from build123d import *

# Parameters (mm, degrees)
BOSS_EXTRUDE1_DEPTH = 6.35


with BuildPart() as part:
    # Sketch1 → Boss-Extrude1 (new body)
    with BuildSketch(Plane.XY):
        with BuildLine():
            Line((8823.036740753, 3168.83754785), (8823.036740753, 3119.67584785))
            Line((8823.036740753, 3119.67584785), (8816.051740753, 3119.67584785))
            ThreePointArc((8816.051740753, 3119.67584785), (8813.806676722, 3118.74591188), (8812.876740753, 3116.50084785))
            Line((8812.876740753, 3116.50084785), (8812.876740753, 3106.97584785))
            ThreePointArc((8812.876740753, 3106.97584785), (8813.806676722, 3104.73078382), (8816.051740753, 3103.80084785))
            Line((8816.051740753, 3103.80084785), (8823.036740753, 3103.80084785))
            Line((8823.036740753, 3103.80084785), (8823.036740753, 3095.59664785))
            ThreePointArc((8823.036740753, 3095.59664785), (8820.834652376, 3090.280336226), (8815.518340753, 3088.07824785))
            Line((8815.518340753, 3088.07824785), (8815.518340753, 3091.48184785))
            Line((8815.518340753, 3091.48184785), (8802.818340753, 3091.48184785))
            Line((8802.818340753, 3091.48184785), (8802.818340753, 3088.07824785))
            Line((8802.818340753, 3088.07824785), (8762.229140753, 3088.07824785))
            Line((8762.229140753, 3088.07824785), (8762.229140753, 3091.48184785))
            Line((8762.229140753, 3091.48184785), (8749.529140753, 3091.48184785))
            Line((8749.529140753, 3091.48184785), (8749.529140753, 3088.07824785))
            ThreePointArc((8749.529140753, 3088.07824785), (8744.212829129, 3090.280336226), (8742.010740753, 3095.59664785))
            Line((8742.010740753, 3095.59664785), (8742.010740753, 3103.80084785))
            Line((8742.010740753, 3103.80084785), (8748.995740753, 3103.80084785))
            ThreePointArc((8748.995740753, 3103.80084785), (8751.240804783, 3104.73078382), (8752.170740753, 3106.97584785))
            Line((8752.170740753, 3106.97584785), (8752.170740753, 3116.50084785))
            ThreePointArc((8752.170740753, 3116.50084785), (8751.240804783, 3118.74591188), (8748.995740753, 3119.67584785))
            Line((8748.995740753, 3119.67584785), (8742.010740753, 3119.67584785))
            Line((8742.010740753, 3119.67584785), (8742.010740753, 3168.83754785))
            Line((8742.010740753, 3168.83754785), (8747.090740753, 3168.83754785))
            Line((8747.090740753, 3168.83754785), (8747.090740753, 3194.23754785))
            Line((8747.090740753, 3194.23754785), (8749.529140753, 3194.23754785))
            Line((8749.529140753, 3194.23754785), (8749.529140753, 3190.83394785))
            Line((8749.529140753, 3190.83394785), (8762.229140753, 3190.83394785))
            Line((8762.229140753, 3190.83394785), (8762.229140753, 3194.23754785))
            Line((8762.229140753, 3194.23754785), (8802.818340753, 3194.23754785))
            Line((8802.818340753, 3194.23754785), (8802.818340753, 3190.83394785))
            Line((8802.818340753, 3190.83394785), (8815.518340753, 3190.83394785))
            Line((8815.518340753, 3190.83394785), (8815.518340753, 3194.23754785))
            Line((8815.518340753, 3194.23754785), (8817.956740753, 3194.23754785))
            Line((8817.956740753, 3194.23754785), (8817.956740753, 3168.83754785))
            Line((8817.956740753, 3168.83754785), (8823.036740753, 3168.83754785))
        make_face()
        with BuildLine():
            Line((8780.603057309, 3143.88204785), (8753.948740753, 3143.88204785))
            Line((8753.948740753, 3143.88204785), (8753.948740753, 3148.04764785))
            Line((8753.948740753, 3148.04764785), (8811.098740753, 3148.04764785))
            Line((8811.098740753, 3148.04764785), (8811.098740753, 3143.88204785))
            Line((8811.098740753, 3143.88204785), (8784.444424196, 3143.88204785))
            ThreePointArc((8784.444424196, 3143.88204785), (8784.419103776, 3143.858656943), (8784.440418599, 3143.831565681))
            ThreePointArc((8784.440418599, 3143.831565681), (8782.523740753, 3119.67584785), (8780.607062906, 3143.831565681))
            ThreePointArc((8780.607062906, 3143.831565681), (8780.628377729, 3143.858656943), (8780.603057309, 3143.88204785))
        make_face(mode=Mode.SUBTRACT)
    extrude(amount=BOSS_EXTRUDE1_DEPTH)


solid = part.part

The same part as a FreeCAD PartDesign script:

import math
import FreeCAD as App
import Part
import Sketcher
Q = App.Units.Quantity

doc = App.newDocument("Part")
params = doc.addObject("Spreadsheet::Sheet", "Params")
for row, (alias, value) in enumerate([
    ("sketch1_height", "1 in"),
    ("sketch1_width", "0.2 in"),
    ("sketch1_width2", "0.5 in"),
    ("sketch1_radius", "0.125 in"),
    ("sketch1_radius2", "0.296 in"),
    ("pad1_length", "0.25 in"),
], start=1):
    params.set(f"A{row}", alias)
    params.set(f"B{row}", "=" + value)
    params.setAlias(f"B{row}", alias)

body = doc.addObject("PartDesign::Body", "Body")

# Sketch on XY plane
sketch1 = body.newObject("Sketcher::SketchObject", "Sketch")
sketch1.AttachmentSupport = (doc.getObject("XY_Plane"), [""])
sketch1.MapMode = "FlatFace"
sketch1.addGeometry([
    Part.LineSegment(App.Vector(8823.036741, 3119.675848, 0), App.Vector(8823.036741, 3168.837548, 0)),  # 0
    Part.LineSegment(App.Vector(8823.036741, 3168.837548, 0), App.Vector(8817.956741, 3168.837548, 0)),  # 1
    Part.LineSegment(App.Vector(8817.956741, 3168.837548, 0), App.Vector(8817.956741, 3194.237548, 0)),  # 2
    Part.LineSegment(App.Vector(8817.956741, 3194.237548, 0), App.Vector(8815.518341, 3194.237548, 0)),  # 3
    Part.LineSegment(App.Vector(8815.518341, 3194.237548, 0), App.Vector(8815.518341, 3190.833948, 0)),  # 4
    Part.LineSegment(App.Vector(8815.518341, 3190.833948, 0), App.Vector(8802.818341, 3190.833948, 0)),  # 5
    Part.LineSegment(App.Vector(8802.818341, 3190.833948, 0), App.Vector(8802.818341, 3194.237548, 0)),  # 6
    Part.LineSegment(App.Vector(8802.818341, 3194.237548, 0), App.Vector(8762.229141, 3194.237548, 0)),  # 7
    Part.LineSegment(App.Vector(8762.229141, 3194.237548, 0), App.Vector(8762.229141, 3190.833948, 0)),  # 8
    Part.LineSegment(App.Vector(8762.229141, 3190.833948, 0), App.Vector(8749.529141, 3190.833948, 0)),  # 9
    Part.LineSegment(App.Vector(8749.529141, 3190.833948, 0), App.Vector(8749.529141, 3194.237548, 0)),  # 10
    Part.LineSegment(App.Vector(8749.529141, 3194.237548, 0), App.Vector(8747.090741, 3194.237548, 0)),  # 11
    Part.LineSegment(App.Vector(8747.090741, 3194.237548, 0), App.Vector(8747.090741, 3168.837548, 0)),  # 12
    Part.LineSegment(App.Vector(8747.090741, 3168.837548, 0), App.Vector(8742.010741, 3168.837548, 0)),  # 13
    Part.LineSegment(App.Vector(8742.010741, 3168.837548, 0), App.Vector(8742.010741, 3119.675848, 0)),  # 14
    Part.LineSegment(App.Vector(8742.010741, 3119.675848, 0), App.Vector(8748.995741, 3119.675848, 0)),  # 15
    Part.ArcOfCircle(Part.Circle(App.Vector(8748.995741, 3116.500848, 0), App.Vector(0, 0, 1), 3.175), math.radians(0), math.radians(90)),  # 16
    Part.LineSegment(App.Vector(8752.170741, 3116.500848, 0), App.Vector(8752.170741, 3106.975848, 0)),  # 17
    Part.ArcOfCircle(Part.Circle(App.Vector(8748.995741, 3106.975848, 0), App.Vector(0, 0, 1), 3.175), math.radians(-90), math.radians(0)),  # 18
    Part.LineSegment(App.Vector(8748.995741, 3103.800848, 0), App.Vector(8742.010741, 3103.800848, 0)),  # 19
    Part.LineSegment(App.Vector(8742.010741, 3103.800848, 0), App.Vector(8742.010741, 3095.596648, 0)),  # 20
    Part.ArcOfCircle(Part.Circle(App.Vector(8749.529141, 3095.596648, 0), App.Vector(0, 0, 1), 7.5184), math.radians(180), math.radians(270)),  # 21
    Part.LineSegment(App.Vector(8749.529141, 3088.078248, 0), App.Vector(8749.529141, 3091.481848, 0)),  # 22
    Part.LineSegment(App.Vector(8749.529141, 3091.481848, 0), App.Vector(8762.229141, 3091.481848, 0)),  # 23
    Part.LineSegment(App.Vector(8762.229141, 3091.481848, 0), App.Vector(8762.229141, 3088.078248, 0)),  # 24
    Part.LineSegment(App.Vector(8762.229141, 3088.078248, 0), App.Vector(8802.818341, 3088.078248, 0)),  # 25
    Part.LineSegment(App.Vector(8802.818341, 3088.078248, 0), App.Vector(8802.818341, 3091.481848, 0)),  # 26
    Part.LineSegment(App.Vector(8802.818341, 3091.481848, 0), App.Vector(8815.518341, 3091.481848, 0)),  # 27
    Part.LineSegment(App.Vector(8815.518341, 3091.481848, 0), App.Vector(8815.518341, 3088.078248, 0)),  # 28
    Part.ArcOfCircle(Part.Circle(App.Vector(8815.518341, 3095.596648, 0), App.Vector(0, 0, 1), 7.5184), math.radians(-90), math.radians(0)),  # 29
    Part.LineSegment(App.Vector(8823.036741, 3095.596648, 0), App.Vector(8823.036741, 3103.800848, 0)),  # 30
    Part.LineSegment(App.Vector(8823.036741, 3103.800848, 0), App.Vector(8816.051741, 3103.800848, 0)),  # 31
    Part.ArcOfCircle(Part.Circle(App.Vector(8816.051741, 3106.975848, 0), App.Vector(0, 0, 1), 3.175), math.radians(180), math.radians(270)),  # 32
    Part.LineSegment(App.Vector(8812.876741, 3106.975848, 0), App.Vector(8812.876741, 3116.500848, 0)),  # 33
    Part.ArcOfCircle(Part.Circle(App.Vector(8816.051741, 3116.500848, 0), App.Vector(0, 0, 1), 3.175), math.radians(90), math.radians(180)),  # 34
    Part.LineSegment(App.Vector(8816.051741, 3119.675848, 0), App.Vector(8823.036741, 3119.675848, 0)),  # 35
    Part.LineSegment(App.Vector(8780.603057, 3143.882048, 0), App.Vector(8753.948741, 3143.882048, 0)),  # 36
    Part.LineSegment(App.Vector(8753.948741, 3143.882048, 0), App.Vector(8753.948741, 3148.047648, 0)),  # 37
    Part.LineSegment(App.Vector(8753.948741, 3148.047648, 0), App.Vector(8811.098741, 3148.047648, 0)),  # 38
    Part.LineSegment(App.Vector(8811.098741, 3148.047648, 0), App.Vector(8811.098741, 3143.882048, 0)),  # 39
    Part.LineSegment(App.Vector(8811.098741, 3143.882048, 0), App.Vector(8784.444424, 3143.882048, 0)),  # 40
    Part.ArcOfCircle(Part.Circle(App.Vector(8784.444424, 3143.856648, 0), App.Vector(0, 0, 1), 0.0254), math.radians(89.999993), math.radians(260.926547)),  # 41
    Part.ArcOfCircle(Part.Circle(App.Vector(8782.523741, 3131.829748, 0), App.Vector(0, 0, 1), 12.1539), math.radians(99.073458), math.radians(440.926542)),  # 42
    Part.ArcOfCircle(Part.Circle(App.Vector(8780.603057, 3143.856648, 0), App.Vector(0, 0, 1), 0.0254), math.radians(-80.926547), math.radians(90.000007)),  # 43
], False)
sketch1.addConstraint([
    Sketcher.Constraint("Coincident", 0, 2, 1, 1),
    Sketcher.Constraint("Coincident", 1, 2, 2, 1),
    Sketcher.Constraint("Coincident", 2, 2, 3, 1),
    Sketcher.Constraint("Coincident", 3, 2, 4, 1),
    Sketcher.Constraint("Coincident", 4, 2, 5, 1),
    Sketcher.Constraint("Coincident", 5, 2, 6, 1),
    Sketcher.Constraint("Coincident", 6, 2, 7, 1),
    Sketcher.Constraint("Coincident", 7, 2, 8, 1),
    Sketcher.Constraint("Coincident", 8, 2, 9, 1),
    Sketcher.Constraint("Coincident", 9, 2, 10, 1),
    Sketcher.Constraint("Coincident", 10, 2, 11, 1),
    Sketcher.Constraint("Coincident", 11, 2, 12, 1),
    Sketcher.Constraint("Coincident", 12, 2, 13, 1),
    Sketcher.Constraint("Coincident", 13, 2, 14, 1),
    Sketcher.Constraint("Coincident", 14, 2, 15, 1),
    Sketcher.Constraint("Tangent", 15, 2, 16, 2),
    Sketcher.Constraint("Tangent", 16, 1, 17, 1),
    Sketcher.Constraint("Tangent", 17, 2, 18, 2),
    Sketcher.Constraint("Tangent", 18, 1, 19, 1),
    Sketcher.Constraint("Coincident", 19, 2, 20, 1),
    Sketcher.Constraint("Tangent", 20, 2, 21, 1),
    Sketcher.Constraint("Coincident", 21, 2, 22, 1),
    Sketcher.Constraint("Coincident", 22, 2, 23, 1),
    Sketcher.Constraint("Coincident", 23, 2, 24, 1),
    Sketcher.Constraint("Coincident", 24, 2, 25, 1),
    Sketcher.Constraint("Coincident", 25, 2, 26, 1),
    Sketcher.Constraint("Coincident", 26, 2, 27, 1),
    Sketcher.Constraint("Coincident", 27, 2, 28, 1),
    Sketcher.Constraint("Coincident", 28, 2, 29, 1),
    Sketcher.Constraint("Tangent", 29, 2, 30, 1),
    Sketcher.Constraint("Coincident", 30, 2, 31, 1),
    Sketcher.Constraint("Tangent", 31, 2, 32, 2),
    Sketcher.Constraint("Tangent", 32, 1, 33, 1),
    Sketcher.Constraint("Tangent", 33, 2, 34, 2),
    Sketcher.Constraint("Tangent", 34, 1, 35, 1),
    Sketcher.Constraint("Coincident", 35, 2, 0, 1),
    Sketcher.Constraint("Coincident", 36, 2, 37, 1),
    Sketcher.Constraint("Coincident", 37, 2, 38, 1),
    Sketcher.Constraint("Coincident", 38, 2, 39, 1),
    Sketcher.Constraint("Coincident", 39, 2, 40, 1),
    Sketcher.Constraint("Tangent", 40, 2, 41, 1),
    Sketcher.Constraint("Tangent", 41, 2, 42, 2),
    Sketcher.Constraint("Tangent", 42, 1, 43, 1),
    Sketcher.Constraint("Tangent", 43, 2, 36, 1),
    Sketcher.Constraint("Vertical", 0),
    Sketcher.Constraint("Horizontal", 1),
    Sketcher.Constraint("Vertical", 2),
    Sketcher.Constraint("Horizontal", 3),
    Sketcher.Constraint("Vertical", 4),
    Sketcher.Constraint("Horizontal", 5),
    Sketcher.Constraint("Vertical", 6),
    Sketcher.Constraint("Horizontal", 7),
    Sketcher.Constraint("Vertical", 8),
    Sketcher.Constraint("Horizontal", 9),
    Sketcher.Constraint("Vertical", 10),
    Sketcher.Constraint("Horizontal", 11),
    Sketcher.Constraint("Vertical", 12),
    Sketcher.Constraint("Horizontal", 13),
    Sketcher.Constraint("Vertical", 14),
    Sketcher.Constraint("Horizontal", 15),
    Sketcher.Constraint("Vertical", 17),
    Sketcher.Constraint("Horizontal", 19),
    Sketcher.Constraint("Vertical", 20),
    Sketcher.Constraint("Vertical", 22),
    Sketcher.Constraint("Horizontal", 23),
    Sketcher.Constraint("Vertical", 24),
    Sketcher.Constraint("Horizontal", 25),
    Sketcher.Constraint("Vertical", 26),
    Sketcher.Constraint("Horizontal", 27),
    Sketcher.Constraint("Vertical", 28),
    Sketcher.Constraint("Vertical", 30),
    Sketcher.Constraint("Horizontal", 31),
    Sketcher.Constraint("Vertical", 33),
    Sketcher.Constraint("Horizontal", 35),
    Sketcher.Constraint("Horizontal", 36),
    Sketcher.Constraint("Vertical", 37),
    Sketcher.Constraint("Horizontal", 38),
    Sketcher.Constraint("Vertical", 39),
    Sketcher.Constraint("Horizontal", 40),
    Sketcher.Constraint("Equal", 16, 18),
    Sketcher.Constraint("Equal", 21, 29),
    Sketcher.Constraint("Equal", 18, 32),
    Sketcher.Constraint("Equal", 32, 34),
    Sketcher.Constraint("Equal", 41, 43),
    Sketcher.Constraint("Horizontal", 21, 3, 29, 3),
    Sketcher.Constraint("Horizontal", 18, 3, 32, 3),
    Sketcher.Constraint("Horizontal", 16, 3, 34, 3),
    Sketcher.Constraint("Horizontal", 41, 3, 43, 3),
    Sketcher.Constraint("Horizontal", 3, 2, 6, 2),
    Sketcher.Constraint("Horizontal", 5, 2, 8, 2),
    Sketcher.Constraint("Horizontal", 7, 2, 10, 2),
    Sketcher.Constraint("Horizontal", 1, 2, 12, 2),
    Sketcher.Constraint("Horizontal", 21, 2, 24, 2),
    Sketcher.Constraint("Horizontal", 23, 2, 26, 2),
    Sketcher.Constraint("Vertical", 29, 3, 3, 2),
    Sketcher.Constraint("Vertical", 21, 3, 9, 2),
    Sketcher.Constraint("Vertical", 14, 2, 19, 2),
    Sketcher.Constraint("Vertical", 10, 2, 21, 2),
    Sketcher.Constraint("Vertical", 8, 2, 23, 2),
    Sketcher.Constraint("Vertical", 6, 2, 25, 2),
    Sketcher.Constraint("Vertical", 4, 2, 27, 2),
    Sketcher.Constraint("Vertical", 0, 2, 29, 2),
    Sketcher.Constraint("Equal", 5, 9),
    Sketcher.Constraint("Equal", 3, 11),
    Sketcher.Constraint("Equal", 19, 31),
    Sketcher.Constraint("Equal", 36, 40),
    Sketcher.Constraint("Equal", 10, 22),
    Sketcher.Constraint("DistanceY", 2, 1, 2, 2, Q("1 in")),
    Sketcher.Constraint("DistanceX", 1, 2, 1, 1, Q("0.2 in")),
    Sketcher.Constraint("DistanceX", 5, 2, 5, 1, Q("0.5 in")),
    Sketcher.Constraint("Radius", 16, Q("0.125 in")),
    Sketcher.Constraint("Radius", 21, Q("0.296 in")),
    Sketcher.Constraint("Radius", 41, Q("0.001 in")),
    Sketcher.Constraint("DistanceX", 38, 1, 38, 2, Q("2.25 in")),
    Sketcher.Constraint("Radius", 42, Q("0.4785 in")),
    Sketcher.Constraint("DistanceY", 29, 3, 41, 3, Q("1.9 in")),
    Sketcher.Constraint("DistanceY", 18, 3, 14, 2, Q("0.5 in")),
    Sketcher.Constraint("DistanceX", 14, 2, 16, 1, Q("0.4 in")),
    Sketcher.Constraint("DistanceX", 7, 2, 7, 1, Q("1.598 in")),
    Sketcher.Constraint("DistanceY", 4, 2, 4, 1, Q("0.134 in")),
    Sketcher.Constraint("DistanceY", 20, 2, 20, 1, Q("0.323 in")),
    Sketcher.Constraint("DistanceY", 37, 1, 37, 2, Q("0.164 in")),
    Sketcher.Constraint("DistanceX", 42, 3, 34, 3, Q("1.32 in")),
    Sketcher.Constraint("DistanceY", 0, 1, 0, 2, Q("1.9355 in")),
    Sketcher.Constraint("DistanceY", 42, 3, 0, 2, Q("1.457 in")),
    Sketcher.Constraint("DistanceX", -1, 1, 16, 3, 8748.995741),
    Sketcher.Constraint("DistanceY", -1, 1, 16, 3, 3116.500848),
])
sketch1.setExpression("Constraints[107]", "Params.sketch1_height")
sketch1.setExpression("Constraints[108]", "Params.sketch1_width")
sketch1.setExpression("Constraints[109]", "Params.sketch1_width2")
sketch1.setExpression("Constraints[110]", "Params.sketch1_radius")
sketch1.setExpression("Constraints[111]", "Params.sketch1_radius2")
pad1 = body.newObject("PartDesign::Pad", "Pad")
pad1.Profile = sketch1
pad1.setExpression("Length", "Params.pad1_length")

doc.recompute()
